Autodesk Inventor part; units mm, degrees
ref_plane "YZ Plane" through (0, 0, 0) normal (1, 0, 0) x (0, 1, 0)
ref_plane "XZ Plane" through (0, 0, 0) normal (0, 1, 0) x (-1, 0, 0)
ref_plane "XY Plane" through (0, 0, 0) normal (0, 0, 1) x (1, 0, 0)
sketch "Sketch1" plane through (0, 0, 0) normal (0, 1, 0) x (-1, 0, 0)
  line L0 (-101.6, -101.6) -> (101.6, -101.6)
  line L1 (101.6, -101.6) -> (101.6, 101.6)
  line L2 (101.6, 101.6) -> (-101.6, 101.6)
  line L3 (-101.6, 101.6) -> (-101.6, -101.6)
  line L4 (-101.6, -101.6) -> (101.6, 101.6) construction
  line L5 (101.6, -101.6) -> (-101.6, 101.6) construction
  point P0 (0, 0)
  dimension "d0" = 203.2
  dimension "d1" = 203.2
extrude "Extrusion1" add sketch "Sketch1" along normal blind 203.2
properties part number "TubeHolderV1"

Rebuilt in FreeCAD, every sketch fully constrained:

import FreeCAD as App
import Part
import Sketcher
Q = App.Units.Quantity

doc = App.newDocument("Part")
body = doc.addObject("PartDesign::Body", "Body")

sketch1 = body.newObject("Sketcher::SketchObject", "Sketch")
sketch1.AttachmentSupport = (doc.getObject("XZ_Plane"), [""])
sketch1.MapMode = "FlatFace"
sketch1.addGeometry(Part.LineSegment(App.Vector(102, 102, 0), App.Vector(102, -102, 0)), False)
sketch1.addGeometry(Part.LineSegment(App.Vector(102, -102, 0), App.Vector(-102, -102, 0)), False)
sketch1.addGeometry(Part.LineSegment(App.Vector(-102, -102, 0), App.Vector(-102, 102, 0)), False)
sketch1.addGeometry(Part.LineSegment(App.Vector(-102, 102, 0), App.Vector(102, 102, 0)), False)
sketch1.addConstraint(Sketcher.Constraint("Coincident", 0, 2, 1, 1))
sketch1.addConstraint(Sketcher.Constraint("Coincident", 1, 2, 2, 1))
sketch1.addConstraint(Sketcher.Constraint("Coincident", 2, 2, 3, 1))
sketch1.addConstraint(Sketcher.Constraint("Coincident", 3, 2, 0, 1))
sketch1.addConstraint(Sketcher.Constraint("Vertical", 0))
sketch1.addConstraint(Sketcher.Constraint("Horizontal", 1))
sketch1.addConstraint(Sketcher.Constraint("Vertical", 2))
sketch1.addConstraint(Sketcher.Constraint("Horizontal", 3))
sketch1.addConstraint(Sketcher.Constraint("Symmetric", 0, 2, 2, 2, -1, 1))
sketch1.addConstraint(Sketcher.Constraint("Equal", 3, 0))
sketch1.addConstraint(Sketcher.Constraint("DistanceX", 1, 2, 1, 1, Q("8 in")))
pad1 = body.newObject("PartDesign::Pad", "Pad")
pad1.Profile = sketch1
pad1.Length = Q("8 in")
pad1.Reversed = True

doc.recompute()
